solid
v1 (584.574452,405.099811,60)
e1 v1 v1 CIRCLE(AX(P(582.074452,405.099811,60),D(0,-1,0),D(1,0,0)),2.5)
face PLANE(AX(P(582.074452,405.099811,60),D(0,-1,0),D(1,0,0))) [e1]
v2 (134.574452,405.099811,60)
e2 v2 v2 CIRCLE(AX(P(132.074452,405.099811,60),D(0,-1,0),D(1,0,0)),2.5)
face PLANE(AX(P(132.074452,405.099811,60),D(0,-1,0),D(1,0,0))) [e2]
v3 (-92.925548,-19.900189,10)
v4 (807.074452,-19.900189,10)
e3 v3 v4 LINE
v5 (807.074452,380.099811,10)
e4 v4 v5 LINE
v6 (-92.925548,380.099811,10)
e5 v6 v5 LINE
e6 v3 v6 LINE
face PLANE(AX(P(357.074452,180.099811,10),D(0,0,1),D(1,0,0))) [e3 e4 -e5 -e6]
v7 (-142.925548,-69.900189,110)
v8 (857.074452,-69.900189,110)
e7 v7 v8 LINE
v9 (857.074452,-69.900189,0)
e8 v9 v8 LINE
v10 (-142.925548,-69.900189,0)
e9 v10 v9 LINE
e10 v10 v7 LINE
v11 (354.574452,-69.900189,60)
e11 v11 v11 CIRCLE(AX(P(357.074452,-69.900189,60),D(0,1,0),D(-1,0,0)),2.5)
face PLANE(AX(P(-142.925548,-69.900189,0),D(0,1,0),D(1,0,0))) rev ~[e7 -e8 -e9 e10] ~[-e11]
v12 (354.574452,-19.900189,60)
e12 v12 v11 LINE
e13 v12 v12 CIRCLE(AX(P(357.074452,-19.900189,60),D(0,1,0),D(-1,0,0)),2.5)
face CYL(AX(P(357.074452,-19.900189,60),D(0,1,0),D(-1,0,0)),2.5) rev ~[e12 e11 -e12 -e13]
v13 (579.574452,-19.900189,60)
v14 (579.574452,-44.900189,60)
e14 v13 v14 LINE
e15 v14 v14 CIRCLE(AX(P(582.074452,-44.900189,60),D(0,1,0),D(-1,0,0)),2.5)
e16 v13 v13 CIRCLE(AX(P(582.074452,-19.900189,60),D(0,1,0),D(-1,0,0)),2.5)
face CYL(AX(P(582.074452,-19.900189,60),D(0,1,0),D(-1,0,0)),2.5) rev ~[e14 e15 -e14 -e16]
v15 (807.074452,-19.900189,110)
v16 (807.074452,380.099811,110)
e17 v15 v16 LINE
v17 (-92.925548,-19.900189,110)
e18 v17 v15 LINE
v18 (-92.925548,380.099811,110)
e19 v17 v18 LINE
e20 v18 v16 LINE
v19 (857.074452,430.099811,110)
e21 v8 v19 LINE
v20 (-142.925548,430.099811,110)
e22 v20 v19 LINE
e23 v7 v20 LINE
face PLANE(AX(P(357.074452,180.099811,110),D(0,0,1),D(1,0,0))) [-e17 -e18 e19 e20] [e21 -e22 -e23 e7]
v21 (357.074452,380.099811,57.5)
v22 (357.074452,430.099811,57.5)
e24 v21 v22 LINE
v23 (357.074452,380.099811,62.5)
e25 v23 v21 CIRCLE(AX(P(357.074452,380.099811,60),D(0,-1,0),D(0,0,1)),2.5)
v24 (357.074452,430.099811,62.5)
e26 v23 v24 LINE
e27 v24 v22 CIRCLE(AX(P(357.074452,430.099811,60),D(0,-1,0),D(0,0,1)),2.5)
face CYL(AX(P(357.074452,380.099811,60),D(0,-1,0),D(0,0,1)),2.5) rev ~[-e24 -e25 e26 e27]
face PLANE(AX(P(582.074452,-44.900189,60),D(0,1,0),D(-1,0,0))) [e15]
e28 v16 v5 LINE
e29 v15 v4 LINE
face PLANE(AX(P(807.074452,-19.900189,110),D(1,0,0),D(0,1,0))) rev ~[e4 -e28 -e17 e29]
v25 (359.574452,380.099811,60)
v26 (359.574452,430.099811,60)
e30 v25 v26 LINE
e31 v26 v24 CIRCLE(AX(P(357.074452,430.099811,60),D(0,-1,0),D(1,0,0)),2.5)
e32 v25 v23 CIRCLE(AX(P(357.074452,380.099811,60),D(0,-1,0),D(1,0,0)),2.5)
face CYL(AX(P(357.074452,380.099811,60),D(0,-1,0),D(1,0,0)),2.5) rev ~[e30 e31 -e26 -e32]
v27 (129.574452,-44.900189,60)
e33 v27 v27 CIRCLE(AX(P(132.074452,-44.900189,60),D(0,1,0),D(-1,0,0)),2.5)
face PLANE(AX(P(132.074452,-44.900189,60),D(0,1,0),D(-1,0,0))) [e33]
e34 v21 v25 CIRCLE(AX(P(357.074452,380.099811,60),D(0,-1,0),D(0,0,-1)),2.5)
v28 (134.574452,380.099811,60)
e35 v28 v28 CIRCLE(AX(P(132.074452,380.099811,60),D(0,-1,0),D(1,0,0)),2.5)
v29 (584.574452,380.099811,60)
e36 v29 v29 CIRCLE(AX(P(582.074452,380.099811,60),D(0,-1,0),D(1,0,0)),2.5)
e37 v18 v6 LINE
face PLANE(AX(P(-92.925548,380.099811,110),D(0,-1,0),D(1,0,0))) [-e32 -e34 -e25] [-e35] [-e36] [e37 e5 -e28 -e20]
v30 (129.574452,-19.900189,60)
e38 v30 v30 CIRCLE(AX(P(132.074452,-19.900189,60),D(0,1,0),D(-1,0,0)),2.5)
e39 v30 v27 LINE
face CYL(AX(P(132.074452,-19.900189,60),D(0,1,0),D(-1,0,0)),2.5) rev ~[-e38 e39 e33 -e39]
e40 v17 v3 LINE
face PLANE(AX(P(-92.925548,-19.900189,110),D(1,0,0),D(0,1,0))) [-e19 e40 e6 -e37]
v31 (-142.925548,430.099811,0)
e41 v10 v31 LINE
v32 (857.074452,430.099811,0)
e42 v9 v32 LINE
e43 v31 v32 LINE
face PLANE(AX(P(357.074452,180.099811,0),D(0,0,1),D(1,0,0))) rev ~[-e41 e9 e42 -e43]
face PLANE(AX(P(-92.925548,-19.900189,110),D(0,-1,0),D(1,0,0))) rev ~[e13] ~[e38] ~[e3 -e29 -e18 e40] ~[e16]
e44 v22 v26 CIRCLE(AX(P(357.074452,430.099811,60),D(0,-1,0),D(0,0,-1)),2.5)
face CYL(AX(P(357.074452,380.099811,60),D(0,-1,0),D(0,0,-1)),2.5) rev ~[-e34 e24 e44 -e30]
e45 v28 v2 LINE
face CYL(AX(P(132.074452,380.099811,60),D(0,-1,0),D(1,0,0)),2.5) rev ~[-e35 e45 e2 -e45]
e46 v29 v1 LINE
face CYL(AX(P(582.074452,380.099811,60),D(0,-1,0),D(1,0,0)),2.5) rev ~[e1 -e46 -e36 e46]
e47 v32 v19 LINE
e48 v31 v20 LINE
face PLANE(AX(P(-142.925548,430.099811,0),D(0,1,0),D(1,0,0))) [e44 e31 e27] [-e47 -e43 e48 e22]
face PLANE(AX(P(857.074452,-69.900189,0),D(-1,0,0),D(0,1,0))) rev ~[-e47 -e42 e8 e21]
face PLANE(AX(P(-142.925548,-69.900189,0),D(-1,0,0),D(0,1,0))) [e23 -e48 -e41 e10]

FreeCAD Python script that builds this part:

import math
import FreeCAD as App
import Part
import Sketcher
from FreeCAD import Vector
Q = App.Units.Quantity

doc = App.newDocument("Part")
body = doc.addObject("PartDesign::Body", "Body")

sketch1 = body.newObject("Sketcher::SketchObject", "Sketch")
sketch1.AttachmentSupport = (doc.getObject("XY_Plane"), [""])
sketch1.MapMode = "FlatFace"
sketch1.addGeometry([
    Part.LineSegment(Vector(-143, 430, 0), Vector(-143, -70, 0)),
    Part.LineSegment(Vector(-143, -70, 0), Vector(857, -70, 0)),
    Part.LineSegment(Vector(857, -70, 0), Vector(857, 430, 0)),
    Part.LineSegment(Vector(857, 430, 0), Vector(-143, 430, 0)),
], False)
sketch1.addConstraint([
    Sketcher.Constraint("Coincident", 0, 2, 1, 1),
    Sketcher.Constraint("Coincident", 1, 2, 2, 1),
    Sketcher.Constraint("Coincident", 2, 2, 3, 1),
    Sketcher.Constraint("Coincident", 3, 2, 0, 1),
    Sketcher.Constraint("Vertical", 0),
    Sketcher.Constraint("Horizontal", 1),
    Sketcher.Constraint("Vertical", 2),
    Sketcher.Constraint("Horizontal", 3),
    Sketcher.Constraint("DistanceX", 1, 1, 1, 2, Q("1000 mm")),
    Sketcher.Constraint("DistanceY", 0, 2, 0, 1, Q("500 mm")),
    Sketcher.Constraint("DistanceY", 0, 2, -1, 1, Q("69.900189 mm")),
    Sketcher.Constraint("DistanceX", 0, 2, -1, 1, Q("142.925548 mm")),
])
pad1 = body.newObject("PartDesign::Pad", "Pad")
pad1.Profile = sketch1
pad1.Length = 110

sketch2 = body.newObject("Sketcher::SketchObject", "Sketch001")
sketch2.AttachmentSupport = (doc.getObject("XY_Plane"), [""])
sketch2.MapMode = "FlatFace"
sketch2.AttachmentOffset = App.Placement(Vector(0, 0, 110), App.Rotation())
sketch2.addGeometry([
    Part.LineSegment(Vector(-93, 380, 0), Vector(-93, -20, 0)),
    Part.LineSegment(Vector(-93, -20, 0), Vector(807, -20, 0)),
    Part.LineSegment(Vector(807, -20, 0), Vector(807, 380, 0)),
    Part.LineSegment(Vector(807, 380, 0), Vector(-93, 380, 0)),
], False)
sketch2.addConstraint([
    Sketcher.Constraint("Coincident", 0, 2, 1, 1),
    Sketcher.Constraint("Coincident", 1, 2, 2, 1),
    Sketcher.Constraint("Coincident", 2, 2, 3, 1),
    Sketcher.Constraint("Coincident", 3, 2, 0, 1),
    Sketcher.Constraint("Vertical", 0),
    Sketcher.Constraint("Horizontal", 1),
    Sketcher.Constraint("Vertical", 2),
    Sketcher.Constraint("Horizontal", 3),
    Sketcher.Constraint("DistanceX", 1, 1, 1, 2, Q("900 mm")),
    Sketcher.Constraint("DistanceY", 0, 2, 0, 1, Q("400 mm")),
    Sketcher.Constraint("DistanceY", 0, 2, -1, 1, Q("19.900189 mm")),
    Sketcher.Constraint("DistanceX", 0, 2, -1, 1, Q("92.925548 mm")),
])
pocket1 = body.newObject("PartDesign::Pocket", "Pocket")
pocket1.Profile = sketch2
pocket1.Length = 100

sketch3 = body.newObject("Sketcher::SketchObject", "Sketch002")
sketch3.AttachmentSupport = (doc.getObject("XZ_Plane"), [""])
sketch3.MapMode = "FlatFace"
sketch3.AttachmentOffset = App.Placement(Vector(0, 0, -380.099811), App.Rotation())
sketch3.addGeometry([
    Part.ArcOfCircle(Part.Circle(Vector(357.1, 60, 0), Vector(0, 0, 1), 2.5), math.radians(0), math.radians(90)),
    Part.ArcOfCircle(Part.Circle(Vector(357.1, 60, 0), Vector(0, 0, 1), 2.5), math.radians(90), math.radians(270)),
    Part.ArcOfCircle(Part.Circle(Vector(357.1, 60, 0), Vector(0, 0, 1), 2.5), math.radians(-90), math.radians(0)),
], False)
sketch3.addConstraint([
    Sketcher.Constraint("Tangent", 0, 2, 1, 1),
    Sketcher.Constraint("Tangent", 1, 2, 2, 1),
    Sketcher.Constraint("Tangent", 2, 2, 0, 1),
    Sketcher.Constraint("Horizontal", 1, 3, 2, 2),
    Sketcher.Constraint("Vertical", 2, 3, 0, 2),
    Sketcher.Constraint("Vertical", 0, 2, 1, 2),
    Sketcher.Constraint("Radius", 0, Q("2.5 mm")),
    Sketcher.Constraint("DistanceY", -1, 1, 0, 3, Q("60 mm")),
    Sketcher.Constraint("DistanceX", -1, 1, 0, 3, Q("357.074452 mm")),
])
pocket2 = body.newObject("PartDesign::Pocket", "Pocket001")
pocket2.Profile = sketch3
pocket2.Length = 50

sketch4 = body.newObject("Sketcher::SketchObject", "Sketch003")
sketch4.AttachmentSupport = (doc.getObject("XZ_Plane"), [""])
sketch4.MapMode = "FlatFace"
sketch4.AttachmentOffset = App.Placement(Vector(0, 0, 19.900189), App.Rotation())
sketch4.addGeometry(Part.Circle(Vector(357.1, 60, 0), Vector(0, 0, 1), 2.5), False)
sketch4.addConstraint([
    Sketcher.Constraint("Diameter", 0, Q("5 mm")),
    Sketcher.Constraint("DistanceY", -1, 1, 0, 3, Q("60 mm")),
    Sketcher.Constraint("DistanceX", -1, 1, 0, 3, Q("357.074452 mm")),
])
pocket3 = body.newObject("PartDesign::Pocket", "Pocket002")
pocket3.Profile = sketch4
pocket3.Length = 50
pocket3.Reversed = True

sketch5 = body.newObject("Sketcher::SketchObject", "Sketch004")
sketch5.AttachmentSupport = (doc.getObject("XZ_Plane"), [""])
sketch5.MapMode = "FlatFace"
sketch5.AttachmentOffset = App.Placement(Vector(0, 0, -380.099811), App.Rotation())
sketch5.addGeometry(Part.Circle(Vector(132.1, 60, 0), Vector(0, 0, 1), 2.5), False)
sketch5.addConstraint([
    Sketcher.Constraint("Diameter", 0, Q("5 mm")),
    Sketcher.Constraint("DistanceY", -1, 1, 0, 3, Q("60 mm")),
    Sketcher.Constraint("DistanceX", -1, 1, 0, 3, Q("132.074452 mm")),
])
pocket4 = body.newObject("PartDesign::Pocket", "Pocket003")
pocket4.Profile = sketch5
pocket4.Length = 25

sketch6 = body.newObject("Sketcher::SketchObject", "Sketch005")
sketch6.AttachmentSupport = (doc.getObject("XZ_Plane"), [""])
sketch6.MapMode = "FlatFace"
sketch6.AttachmentOffset = App.Placement(Vector(0, 0, -380.099811), App.Rotation())
sketch6.addGeometry([
    Part.Circle(Vector(132.1, 60, 0), Vector(0, 0, 1), 2.5),
    Part.Circle(Vector(582.1, 60, 0), Vector(0, 0, 1), 2.5),
], False)
sketch6.addConstraint([
    Sketcher.Constraint("Equal", 0, 1),
    Sketcher.Constraint("Horizontal", 0, 3, 1, 3),
    Sketcher.Constraint("Diameter", 0, Q("5 mm")),
    Sketcher.Constraint("DistanceY", -1, 1, 0, 3, Q("60 mm")),
    Sketcher.Constraint("DistanceX", 0, 3, 1, 3, Q("450 mm")),
    Sketcher.Constraint("DistanceX", -1, 1, 0, 3, Q("132.074452 mm")),
])
pocket5 = body.newObject("PartDesign::Pocket", "Pocket004")
pocket5.Profile = sketch6
pocket5.Length = 25

sketch7 = body.newObject("Sketcher::SketchObject", "Sketch006")
sketch7.AttachmentSupport = (doc.getObject("XZ_Plane"), [""])
sketch7.MapMode = "FlatFace"
sketch7.AttachmentOffset = App.Placement(Vector(0, 0, 19.900189), App.Rotation())
sketch7.addGeometry([
    Part.Circle(Vector(132.1, 60, 0), Vector(0, 0, 1), 2.5),
    Part.Circle(Vector(582.1, 60, 0), Vector(0, 0, 1), 2.5),
], False)
sketch7.addConstraint([
    Sketcher.Constraint("Equal", 0, 1),
    Sketcher.Constraint("Horizontal", 0, 3, 1, 3),
    Sketcher.Constraint("Diameter", 0, Q("5 mm")),
    Sketcher.Constraint("DistanceY", -1, 1, 0, 3, Q("60 mm")),
    Sketcher.Constraint("DistanceX", 0, 3, 1, 3, Q("450 mm")),
    Sketcher.Constraint("DistanceX", -1, 1, 0, 3, Q("132.074452 mm")),
])
pocket6 = body.newObject("PartDesign::Pocket", "Pocket005")
pocket6.Profile = sketch7
pocket6.Length = 25
pocket6.Reversed = True

doc.recompute()
